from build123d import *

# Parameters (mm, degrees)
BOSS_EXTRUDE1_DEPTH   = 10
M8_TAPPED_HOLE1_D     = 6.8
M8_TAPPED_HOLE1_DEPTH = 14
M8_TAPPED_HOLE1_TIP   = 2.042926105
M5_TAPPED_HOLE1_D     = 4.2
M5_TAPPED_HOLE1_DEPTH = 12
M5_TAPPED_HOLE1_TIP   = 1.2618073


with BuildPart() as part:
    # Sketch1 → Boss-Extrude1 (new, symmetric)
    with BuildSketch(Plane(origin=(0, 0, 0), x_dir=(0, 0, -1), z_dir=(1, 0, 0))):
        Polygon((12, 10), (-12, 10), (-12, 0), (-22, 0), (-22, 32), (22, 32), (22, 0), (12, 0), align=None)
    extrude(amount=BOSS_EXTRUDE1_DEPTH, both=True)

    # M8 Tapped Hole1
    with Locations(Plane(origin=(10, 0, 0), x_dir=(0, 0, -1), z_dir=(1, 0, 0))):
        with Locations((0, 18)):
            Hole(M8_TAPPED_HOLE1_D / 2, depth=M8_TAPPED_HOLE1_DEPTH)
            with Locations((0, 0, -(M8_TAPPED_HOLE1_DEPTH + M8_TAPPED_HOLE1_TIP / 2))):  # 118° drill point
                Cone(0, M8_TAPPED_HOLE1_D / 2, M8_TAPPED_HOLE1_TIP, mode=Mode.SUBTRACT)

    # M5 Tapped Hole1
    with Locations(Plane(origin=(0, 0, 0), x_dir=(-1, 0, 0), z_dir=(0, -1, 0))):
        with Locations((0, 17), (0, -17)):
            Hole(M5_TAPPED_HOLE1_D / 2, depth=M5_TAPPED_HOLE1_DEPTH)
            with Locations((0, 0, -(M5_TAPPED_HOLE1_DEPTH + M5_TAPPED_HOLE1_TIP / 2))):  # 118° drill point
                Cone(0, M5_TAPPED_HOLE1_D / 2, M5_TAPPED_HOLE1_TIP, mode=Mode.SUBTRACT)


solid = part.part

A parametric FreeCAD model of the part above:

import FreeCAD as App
import Part
import Sketcher

V = App.Vector

doc = App.newDocument("Part")
body = doc.addObject("PartDesign::Body", "Body")

# Sketch on YZ plane
sketch1 = body.newObject("Sketcher::SketchObject", "Sketch")
sketch1.AttachmentSupport = (doc.getObject("YZ_Plane"), [""])
sketch1.MapMode = "FlatFace"
sketch1.addGeometry([
    Part.LineSegment(V(10, 12, 0), V(10, -12, 0)),  # 0
    Part.LineSegment(V(10, -12, 0), V(0, -12, 0)),  # 1
    Part.LineSegment(V(0, -12, 0), V(0, -22, 0)),  # 2
    Part.LineSegment(V(0, -22, 0), V(32, -22, 0)),  # 3
    Part.LineSegment(V(32, -22, 0), V(32, 22, 0)),  # 4
    Part.LineSegment(V(32, 22, 0), V(0, 22, 0)),  # 5
    Part.LineSegment(V(0, 22, 0), V(0, 12, 0)),  # 6
    Part.LineSegment(V(0, 12, 0), V(10, 12, 0)),  # 7
], False)
sketch1.addConstraint([
    Sketcher.Constraint("Coincident", 0, 2, 1, 1),
    Sketcher.Constraint("Coincident", 1, 2, 2, 1),
    Sketcher.Constraint("Coincident", 2, 2, 3, 1),
    Sketcher.Constraint("Coincident", 3, 2, 4, 1),
    Sketcher.Constraint("Coincident", 4, 2, 5, 1),
    Sketcher.Constraint("Coincident", 5, 2, 6, 1),
    Sketcher.Constraint("Coincident", 6, 2, 7, 1),
    Sketcher.Constraint("Coincident", 7, 2, 0, 1),
    Sketcher.Constraint("Vertical", 0),
    Sketcher.Constraint("Horizontal", 1),
    Sketcher.Constraint("Vertical", 2),
    Sketcher.Constraint("Horizontal", 3),
    Sketcher.Constraint("Vertical", 4),
    Sketcher.Constraint("Horizontal", 5),
    Sketcher.Constraint("Vertical", 6),
    Sketcher.Constraint("Horizontal", 7),
    Sketcher.Constraint("Symmetric", 2, 2, 5, 2, -1, 1),
    Sketcher.Constraint("Symmetric", 1, 2, 6, 2, -1),
    Sketcher.Constraint("Equal", 7, 2),
    Sketcher.Constraint("DistanceX", 1, 2, 1, 1, 10.0),
    Sketcher.Constraint("DistanceX", 3, 1, 3, 2, 32.0),
    Sketcher.Constraint("DistanceY", 0, 2, 0, 1, 24.0),
])
pad1 = body.newObject("PartDesign::Pad", "Pad")
pad1.Profile = sketch1
pad1.Length = 20
pad1.Midplane = True

# Sketch on YZ plane
sketch2 = body.newObject("Sketcher::SketchObject", "Sketch001")
sketch2.AttachmentSupport = (doc.getObject("YZ_Plane"), [""])
sketch2.MapMode = "FlatFace"
sketch2.AttachmentOffset = App.Placement(V(0, 0, 10), App.Rotation())
sketch2.addGeometry(Part.Circle(V(18, 0, 0), V(0, 0, 1), 3.4), False)
sketch2.addConstraint([
    Sketcher.Constraint("PointOnObject", 0, 3, -1),
    Sketcher.Constraint("Diameter", 0, 6.8),
    Sketcher.Constraint("DistanceX", -1, 1, 0, 3, 18.0),
])
doc.recompute()
hole = body.newObject("PartDesign::Hole", "Hole")
hole.Profile = sketch2
hole.ThreadType = "None"
hole.Diameter = 6.8
hole.DepthType = "Dimension"
hole.Depth = 14
hole.DrillPoint = "Angled"
hole.DrillPointAngle = 118

# Sketch on XZ plane
sketch3 = body.newObject("Sketcher::SketchObject", "Sketch002")
sketch3.AttachmentSupport = (doc.getObject("XZ_Plane"), [""])
sketch3.MapMode = "FlatFace"
sketch3.addGeometry([
    Part.Circle(V(0, -17, 0), V(0, 0, 1), 2.1),
    Part.Circle(V(0, 17, 0), V(0, 0, 1), 2.1),
], False)
sketch3.addConstraint([
    Sketcher.Constraint("Equal", 0, 1),
    Sketcher.Constraint("Symmetric", 0, 3, 1, 3, -1, 1),
    Sketcher.Constraint("PointOnObject", 0, 3, -2),
    Sketcher.Constraint("Diameter", 0, 4.2),
    Sketcher.Constraint("DistanceY", 0, 3, -1, 1, 17.0),
])
doc.recompute()
hole2 = body.newObject("PartDesign::Hole", "Hole001")
hole2.Profile = sketch3
hole2.ThreadType = "None"
hole2.Diameter = 4.2
hole2.DepthType = "Dimension"
hole2.Depth = 12
hole2.DrillPoint = "Angled"
hole2.DrillPointAngle = 118

doc.recompute()
